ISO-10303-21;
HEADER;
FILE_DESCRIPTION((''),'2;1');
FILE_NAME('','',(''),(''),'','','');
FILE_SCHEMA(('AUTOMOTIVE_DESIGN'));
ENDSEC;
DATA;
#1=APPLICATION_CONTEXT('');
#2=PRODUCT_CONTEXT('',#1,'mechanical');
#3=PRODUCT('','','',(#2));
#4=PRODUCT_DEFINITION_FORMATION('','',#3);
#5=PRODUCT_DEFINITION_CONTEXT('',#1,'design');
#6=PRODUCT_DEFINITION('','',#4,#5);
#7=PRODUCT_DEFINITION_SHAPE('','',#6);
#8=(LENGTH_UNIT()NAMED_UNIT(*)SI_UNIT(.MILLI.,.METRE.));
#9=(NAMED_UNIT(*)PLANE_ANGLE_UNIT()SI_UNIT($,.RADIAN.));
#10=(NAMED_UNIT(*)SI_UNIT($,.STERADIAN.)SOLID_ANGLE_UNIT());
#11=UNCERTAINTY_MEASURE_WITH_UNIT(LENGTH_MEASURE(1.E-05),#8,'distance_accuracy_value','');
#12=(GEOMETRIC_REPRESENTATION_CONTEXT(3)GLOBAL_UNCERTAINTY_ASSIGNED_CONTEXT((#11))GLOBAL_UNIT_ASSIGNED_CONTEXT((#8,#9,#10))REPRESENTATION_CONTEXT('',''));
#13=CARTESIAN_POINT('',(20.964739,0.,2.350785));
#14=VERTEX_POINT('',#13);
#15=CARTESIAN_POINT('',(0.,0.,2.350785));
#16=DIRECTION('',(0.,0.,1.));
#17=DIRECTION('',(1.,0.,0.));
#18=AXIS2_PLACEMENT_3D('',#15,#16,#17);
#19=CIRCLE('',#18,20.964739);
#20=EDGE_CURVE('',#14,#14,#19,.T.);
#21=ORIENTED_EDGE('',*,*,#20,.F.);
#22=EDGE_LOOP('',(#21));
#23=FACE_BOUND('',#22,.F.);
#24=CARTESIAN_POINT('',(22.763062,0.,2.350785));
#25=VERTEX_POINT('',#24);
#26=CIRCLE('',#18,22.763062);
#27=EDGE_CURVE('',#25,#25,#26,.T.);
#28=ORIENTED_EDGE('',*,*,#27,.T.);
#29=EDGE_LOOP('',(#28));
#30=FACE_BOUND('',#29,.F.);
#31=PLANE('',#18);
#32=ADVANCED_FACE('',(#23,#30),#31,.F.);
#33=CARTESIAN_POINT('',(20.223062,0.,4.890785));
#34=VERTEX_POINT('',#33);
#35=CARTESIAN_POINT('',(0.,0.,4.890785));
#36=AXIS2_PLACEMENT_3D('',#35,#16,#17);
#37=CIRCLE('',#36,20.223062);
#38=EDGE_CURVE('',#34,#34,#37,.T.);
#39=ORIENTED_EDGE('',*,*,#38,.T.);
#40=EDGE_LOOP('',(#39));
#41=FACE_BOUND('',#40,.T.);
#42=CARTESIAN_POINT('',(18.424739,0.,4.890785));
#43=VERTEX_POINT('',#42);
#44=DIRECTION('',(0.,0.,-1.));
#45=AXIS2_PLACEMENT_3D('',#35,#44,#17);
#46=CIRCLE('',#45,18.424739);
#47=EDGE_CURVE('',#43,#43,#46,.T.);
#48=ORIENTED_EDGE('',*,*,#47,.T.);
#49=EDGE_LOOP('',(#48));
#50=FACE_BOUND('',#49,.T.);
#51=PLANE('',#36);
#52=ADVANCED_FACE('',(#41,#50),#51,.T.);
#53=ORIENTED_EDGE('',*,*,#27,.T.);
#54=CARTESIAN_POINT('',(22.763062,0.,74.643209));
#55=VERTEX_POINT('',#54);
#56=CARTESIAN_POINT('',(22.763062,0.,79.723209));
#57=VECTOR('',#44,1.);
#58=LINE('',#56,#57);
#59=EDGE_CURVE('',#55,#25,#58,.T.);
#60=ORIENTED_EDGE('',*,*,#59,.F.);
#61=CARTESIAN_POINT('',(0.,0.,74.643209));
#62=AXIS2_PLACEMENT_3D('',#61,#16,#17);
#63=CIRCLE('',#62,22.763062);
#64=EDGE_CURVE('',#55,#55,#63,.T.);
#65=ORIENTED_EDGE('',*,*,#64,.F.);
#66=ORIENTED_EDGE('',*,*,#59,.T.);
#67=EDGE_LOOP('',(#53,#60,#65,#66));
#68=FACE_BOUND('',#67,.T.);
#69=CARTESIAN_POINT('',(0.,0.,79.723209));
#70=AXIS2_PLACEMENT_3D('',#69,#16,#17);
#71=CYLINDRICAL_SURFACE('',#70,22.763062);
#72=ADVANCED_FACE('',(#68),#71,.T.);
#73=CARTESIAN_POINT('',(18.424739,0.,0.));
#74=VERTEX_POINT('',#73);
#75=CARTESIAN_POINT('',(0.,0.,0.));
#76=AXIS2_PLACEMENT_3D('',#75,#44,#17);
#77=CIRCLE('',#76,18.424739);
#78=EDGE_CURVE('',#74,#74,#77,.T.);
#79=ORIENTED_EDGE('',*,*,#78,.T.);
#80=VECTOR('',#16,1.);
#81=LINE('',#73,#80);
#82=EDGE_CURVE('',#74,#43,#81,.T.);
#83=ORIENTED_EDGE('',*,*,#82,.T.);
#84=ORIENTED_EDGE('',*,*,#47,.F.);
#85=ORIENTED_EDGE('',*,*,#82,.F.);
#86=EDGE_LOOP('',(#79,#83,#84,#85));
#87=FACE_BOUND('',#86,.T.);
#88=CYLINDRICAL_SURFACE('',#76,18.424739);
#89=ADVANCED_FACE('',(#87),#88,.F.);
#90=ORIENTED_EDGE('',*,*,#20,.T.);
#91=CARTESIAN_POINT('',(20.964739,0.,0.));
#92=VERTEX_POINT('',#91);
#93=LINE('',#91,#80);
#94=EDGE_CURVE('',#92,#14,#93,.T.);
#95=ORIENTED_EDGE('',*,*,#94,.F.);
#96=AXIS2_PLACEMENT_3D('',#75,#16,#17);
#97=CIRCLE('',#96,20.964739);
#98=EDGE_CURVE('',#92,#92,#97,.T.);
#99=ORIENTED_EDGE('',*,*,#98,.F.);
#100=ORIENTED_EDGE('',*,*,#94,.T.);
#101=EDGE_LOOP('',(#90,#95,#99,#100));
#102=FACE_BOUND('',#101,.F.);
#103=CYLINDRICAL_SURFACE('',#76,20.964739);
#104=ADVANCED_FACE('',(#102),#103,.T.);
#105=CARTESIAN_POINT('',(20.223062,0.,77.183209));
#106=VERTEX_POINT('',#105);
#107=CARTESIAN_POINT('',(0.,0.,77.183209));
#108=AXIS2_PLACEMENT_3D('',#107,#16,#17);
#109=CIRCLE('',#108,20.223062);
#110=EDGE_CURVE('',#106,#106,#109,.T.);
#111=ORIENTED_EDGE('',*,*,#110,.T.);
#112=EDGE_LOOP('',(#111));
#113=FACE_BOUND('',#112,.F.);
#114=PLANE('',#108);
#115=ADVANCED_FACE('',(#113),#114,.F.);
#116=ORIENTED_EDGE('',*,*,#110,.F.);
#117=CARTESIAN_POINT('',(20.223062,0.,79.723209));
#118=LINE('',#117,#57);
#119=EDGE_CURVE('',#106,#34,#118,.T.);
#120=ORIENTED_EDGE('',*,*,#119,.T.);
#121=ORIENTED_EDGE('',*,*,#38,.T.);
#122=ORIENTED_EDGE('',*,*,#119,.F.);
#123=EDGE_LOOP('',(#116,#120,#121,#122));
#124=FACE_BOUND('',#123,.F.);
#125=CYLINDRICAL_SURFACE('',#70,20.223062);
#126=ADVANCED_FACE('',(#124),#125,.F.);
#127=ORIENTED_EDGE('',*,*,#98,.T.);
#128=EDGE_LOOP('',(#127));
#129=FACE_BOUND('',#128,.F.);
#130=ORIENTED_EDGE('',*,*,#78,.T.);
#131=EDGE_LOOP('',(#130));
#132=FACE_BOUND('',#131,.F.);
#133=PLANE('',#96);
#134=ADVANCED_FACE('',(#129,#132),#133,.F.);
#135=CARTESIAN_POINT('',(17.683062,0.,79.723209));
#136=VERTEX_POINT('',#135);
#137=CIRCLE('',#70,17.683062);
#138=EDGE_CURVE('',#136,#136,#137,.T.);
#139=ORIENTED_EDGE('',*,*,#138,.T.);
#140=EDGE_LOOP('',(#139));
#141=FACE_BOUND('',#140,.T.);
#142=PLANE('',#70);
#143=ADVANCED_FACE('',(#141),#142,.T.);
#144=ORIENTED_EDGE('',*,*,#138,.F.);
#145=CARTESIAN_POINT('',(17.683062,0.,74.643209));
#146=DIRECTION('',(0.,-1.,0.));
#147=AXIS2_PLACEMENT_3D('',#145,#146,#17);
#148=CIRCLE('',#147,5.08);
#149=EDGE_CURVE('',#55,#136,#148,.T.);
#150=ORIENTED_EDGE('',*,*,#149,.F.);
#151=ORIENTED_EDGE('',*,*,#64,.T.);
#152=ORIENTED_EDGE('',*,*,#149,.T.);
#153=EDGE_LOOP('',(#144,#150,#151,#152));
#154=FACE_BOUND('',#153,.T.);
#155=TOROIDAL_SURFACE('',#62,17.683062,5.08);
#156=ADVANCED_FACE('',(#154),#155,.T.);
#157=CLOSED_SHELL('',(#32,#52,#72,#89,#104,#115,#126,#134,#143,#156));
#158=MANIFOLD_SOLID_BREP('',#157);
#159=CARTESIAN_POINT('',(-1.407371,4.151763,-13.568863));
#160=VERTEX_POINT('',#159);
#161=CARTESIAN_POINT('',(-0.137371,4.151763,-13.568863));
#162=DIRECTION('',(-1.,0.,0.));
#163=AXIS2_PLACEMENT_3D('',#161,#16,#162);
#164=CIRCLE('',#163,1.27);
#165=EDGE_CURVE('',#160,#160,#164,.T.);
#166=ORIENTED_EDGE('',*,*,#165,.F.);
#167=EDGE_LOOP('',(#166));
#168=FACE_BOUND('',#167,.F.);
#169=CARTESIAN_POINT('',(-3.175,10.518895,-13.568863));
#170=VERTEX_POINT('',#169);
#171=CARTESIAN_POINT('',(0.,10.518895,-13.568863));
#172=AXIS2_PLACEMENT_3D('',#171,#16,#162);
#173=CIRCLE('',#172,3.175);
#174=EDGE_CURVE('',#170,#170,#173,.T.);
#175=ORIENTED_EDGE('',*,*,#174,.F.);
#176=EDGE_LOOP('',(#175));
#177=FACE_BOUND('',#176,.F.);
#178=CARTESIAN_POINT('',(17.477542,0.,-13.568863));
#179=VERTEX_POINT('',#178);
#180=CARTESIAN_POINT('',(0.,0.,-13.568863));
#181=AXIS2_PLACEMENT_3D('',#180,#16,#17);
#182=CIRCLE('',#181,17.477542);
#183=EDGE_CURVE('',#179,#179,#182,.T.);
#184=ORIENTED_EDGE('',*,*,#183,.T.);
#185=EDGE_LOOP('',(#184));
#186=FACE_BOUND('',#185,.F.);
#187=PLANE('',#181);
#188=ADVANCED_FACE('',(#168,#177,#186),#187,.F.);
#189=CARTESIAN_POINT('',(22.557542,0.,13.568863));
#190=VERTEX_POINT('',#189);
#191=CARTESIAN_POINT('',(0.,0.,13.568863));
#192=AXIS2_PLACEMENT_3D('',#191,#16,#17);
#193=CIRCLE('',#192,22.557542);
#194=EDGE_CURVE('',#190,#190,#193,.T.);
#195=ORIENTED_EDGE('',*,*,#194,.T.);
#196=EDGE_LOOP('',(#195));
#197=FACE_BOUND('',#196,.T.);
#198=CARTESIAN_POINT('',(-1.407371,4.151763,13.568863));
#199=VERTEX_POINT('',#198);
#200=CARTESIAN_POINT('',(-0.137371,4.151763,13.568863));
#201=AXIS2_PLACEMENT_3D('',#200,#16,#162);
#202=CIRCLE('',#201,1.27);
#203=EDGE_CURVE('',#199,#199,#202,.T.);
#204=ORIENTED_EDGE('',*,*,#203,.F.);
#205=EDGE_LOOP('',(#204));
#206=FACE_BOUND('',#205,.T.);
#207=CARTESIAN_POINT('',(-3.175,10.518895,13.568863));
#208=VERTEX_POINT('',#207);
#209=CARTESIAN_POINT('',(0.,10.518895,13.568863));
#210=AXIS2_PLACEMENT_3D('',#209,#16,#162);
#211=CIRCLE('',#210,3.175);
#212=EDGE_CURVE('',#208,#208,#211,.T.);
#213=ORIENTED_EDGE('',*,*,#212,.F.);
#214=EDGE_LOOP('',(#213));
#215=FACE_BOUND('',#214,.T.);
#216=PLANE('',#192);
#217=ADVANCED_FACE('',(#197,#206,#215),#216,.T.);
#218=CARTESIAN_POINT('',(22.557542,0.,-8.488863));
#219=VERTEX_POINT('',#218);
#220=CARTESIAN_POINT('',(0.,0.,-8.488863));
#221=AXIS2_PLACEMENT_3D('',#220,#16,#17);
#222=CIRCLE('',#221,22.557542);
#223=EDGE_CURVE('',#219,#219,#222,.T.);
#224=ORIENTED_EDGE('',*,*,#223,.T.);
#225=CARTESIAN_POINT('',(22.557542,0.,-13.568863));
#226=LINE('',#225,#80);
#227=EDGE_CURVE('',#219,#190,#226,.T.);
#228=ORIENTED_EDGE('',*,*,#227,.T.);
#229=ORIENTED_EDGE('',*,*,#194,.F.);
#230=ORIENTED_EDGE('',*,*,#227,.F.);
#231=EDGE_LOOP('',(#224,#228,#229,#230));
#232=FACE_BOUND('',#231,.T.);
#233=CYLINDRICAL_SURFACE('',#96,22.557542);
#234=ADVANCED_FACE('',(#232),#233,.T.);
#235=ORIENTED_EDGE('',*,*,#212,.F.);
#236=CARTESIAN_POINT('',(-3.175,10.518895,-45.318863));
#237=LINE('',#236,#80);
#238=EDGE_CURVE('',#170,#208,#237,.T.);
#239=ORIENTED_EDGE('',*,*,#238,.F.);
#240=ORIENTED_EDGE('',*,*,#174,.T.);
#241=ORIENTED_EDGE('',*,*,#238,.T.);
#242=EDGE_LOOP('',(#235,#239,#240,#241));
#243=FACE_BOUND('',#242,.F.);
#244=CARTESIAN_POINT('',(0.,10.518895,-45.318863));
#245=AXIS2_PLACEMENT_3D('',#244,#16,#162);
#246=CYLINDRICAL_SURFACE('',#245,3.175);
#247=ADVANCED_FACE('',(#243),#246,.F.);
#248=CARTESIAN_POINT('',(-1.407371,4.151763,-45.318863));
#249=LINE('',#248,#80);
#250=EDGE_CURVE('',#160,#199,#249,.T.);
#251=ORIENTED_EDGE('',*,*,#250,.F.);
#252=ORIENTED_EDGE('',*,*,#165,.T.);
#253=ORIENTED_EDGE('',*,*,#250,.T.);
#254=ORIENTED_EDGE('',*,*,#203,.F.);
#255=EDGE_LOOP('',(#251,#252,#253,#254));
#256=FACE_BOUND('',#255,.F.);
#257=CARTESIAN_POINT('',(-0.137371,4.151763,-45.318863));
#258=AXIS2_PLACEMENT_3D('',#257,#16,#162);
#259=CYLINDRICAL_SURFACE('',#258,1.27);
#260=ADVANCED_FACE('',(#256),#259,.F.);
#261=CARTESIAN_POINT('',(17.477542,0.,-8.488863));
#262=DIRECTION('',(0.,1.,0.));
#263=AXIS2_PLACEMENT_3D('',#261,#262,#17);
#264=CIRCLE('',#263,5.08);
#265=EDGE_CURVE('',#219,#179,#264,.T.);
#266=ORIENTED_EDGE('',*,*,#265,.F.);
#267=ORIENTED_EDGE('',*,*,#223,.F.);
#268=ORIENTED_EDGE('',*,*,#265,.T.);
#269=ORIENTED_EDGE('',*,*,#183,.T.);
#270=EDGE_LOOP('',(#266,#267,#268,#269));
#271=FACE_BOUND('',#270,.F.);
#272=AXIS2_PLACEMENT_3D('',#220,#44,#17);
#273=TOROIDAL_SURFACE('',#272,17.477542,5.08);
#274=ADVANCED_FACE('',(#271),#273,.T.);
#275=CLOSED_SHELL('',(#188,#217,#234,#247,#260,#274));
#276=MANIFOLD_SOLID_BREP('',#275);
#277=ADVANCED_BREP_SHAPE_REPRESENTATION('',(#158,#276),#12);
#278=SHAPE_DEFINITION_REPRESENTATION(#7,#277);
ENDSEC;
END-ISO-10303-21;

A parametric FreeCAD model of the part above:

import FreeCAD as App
import Part
import Sketcher
Q = App.Units.Quantity


def edges_at(feature, points):
    """Names of the edges that pass closest to the given points."""
    edges = feature.Shape.Edges
    near = lambda p: min(range(len(edges)), key=lambda i: edges[i].distToShape(Part.Vertex(*p))[0])
    return sorted({f"Edge{near(p) + 1}" for p in points})


def faces_at(feature, points):
    """Names of the faces that lie closest to the given points."""
    faces = feature.Shape.Faces
    near = lambda p: min(range(len(faces)), key=lambda i: faces[i].distToShape(Part.Vertex(*p))[0])
    return sorted({f"Face{near(p) + 1}" for p in points})

doc = App.newDocument("Part")
body = doc.addObject("PartDesign::Body", "Body")

# Sketch on XY plane
sketch1 = doc.addObject("Sketcher::SketchObject", "Sketch")
body.addObject(sketch1)
sketch1.AttachmentSupport = (doc.XY_Plane, [""])
sketch1.MapMode = "FlatFace"
sketch1.addGeometry(Part.Circle(App.Vector(0, 0, 0), App.Vector(0, 0, 1), 21), False)
sketch1.addConstraint(Sketcher.Constraint("Coincident", 0, 3, -1, 1))
sketch1.addConstraint(Sketcher.Constraint("Diameter", 0, 41.929478))
pad1 = doc.addObject("PartDesign::Pad", "Pad")
body.addObject(pad1)
pad1.Profile = sketch1
pad1.Length = 79.723209

# Sketch on XY plane
sketch2 = doc.addObject("Sketcher::SketchObject", "Sketch001")
body.addObject(sketch2)
sketch2.AttachmentSupport = (doc.XY_Plane, [""])
sketch2.MapMode = "FlatFace"
sketch2.AttachmentOffset = App.Placement(App.Vector(0, 0, 79.723209), App.Rotation())
sketch2.addGeometry(Part.Circle(App.Vector(0, 0, 0), App.Vector(0, 0, 1), 23), False)
sketch2.addGeometry(Part.Circle(App.Vector(0, 0, 0), App.Vector(0, 0, 1), 21), False)
sketch2.addConstraint(Sketcher.Constraint("Coincident", 0, 3, -1, 1))
sketch2.addConstraint(Sketcher.Constraint("Coincident", 1, 3, -1, 1))
sketch2.addConstraint(Sketcher.Constraint("Diameter", 1, 41.929478))
sketch2.addConstraint(Sketcher.Constraint("Diameter", 0, 45.526123))
pad2 = doc.addObject("PartDesign::Pad", "Pad001")
body.addObject(pad2)
pad2.Profile = sketch2
pad2.Length = 77.372424
pad2.Reversed = True
doc.recompute()

thickness = doc.addObject("PartDesign::Thickness", "Thickness")
body.addObject(thickness)
thickness.Base = (pad2, faces_at(pad2, [(0, 0, 0)]))
thickness.Value = Q("0.1 in")
thickness.Reversed = True
thickness.Join = "Intersection"
doc.recompute()

fillet = doc.addObject("PartDesign::Fillet", "Fillet")
body.addObject(fillet)
fillet.Base = (thickness, edges_at(thickness, [(-22.763, 0, 79.723)]))
fillet.Radius = Q("0.2 in")
body2 = doc.addObject("PartDesign::Body", "Body001")

# Sketch on XY plane
sketch3 = doc.addObject("Sketcher::SketchObject", "Sketch002")
body2.addObject(sketch3)
sketch3.AttachmentSupport = (doc.getObject("XY_Plane001"), [""])
sketch3.MapMode = "FlatFace"
sketch3.addGeometry(Part.Circle(App.Vector(0, 0, 0), App.Vector(0, 0, 1), 23), False)
sketch3.addConstraint(Sketcher.Constraint("Coincident", 0, 3, -1, 1))
sketch3.addConstraint(Sketcher.Constraint("Diameter", 0, 45.115083))
pad3 = doc.addObject("PartDesign::Pad", "Pad002")
body2.addObject(pad3)
pad3.Profile = sketch3
pad3.Length = 27.137727
pad3.Midplane = True

# Sketch on XY plane
sketch4 = doc.addObject("Sketcher::SketchObject", "Sketch003")
body2.addObject(sketch4)
sketch4.AttachmentSupport = (doc.getObject("XY_Plane001"), [""])
sketch4.MapMode = "FlatFace"
sketch4.AttachmentOffset = App.Placement(App.Vector(0, 0, -13.568863), App.Rotation())
sketch4.addGeometry(Part.Circle(App.Vector(0, 10.5, 0), App.Vector(0, 0, 1), 3.2), False)
sketch4.addConstraint(Sketcher.Constraint("PointOnObject", 0, 3, -2))
sketch4.addConstraint(Sketcher.Constraint("Diameter", 0, Q("0.25 in")))
sketch4.addConstraint(Sketcher.Constraint("DistanceY", -1, 1, 0, 3, 10.518895))
doc.recompute()
hole = doc.addObject("PartDesign::Hole", "Hole")
body2.addObject(hole)
hole.Profile = sketch4
hole.ThreadType = "None"
hole.Diameter = Q("0.25 in")
hole.DepthType = "Dimension"
hole.Depth = Q("1.25 in")
hole.DrillPoint = "Angled"
hole.DrillPointAngle = 118
hole.Reversed = True
doc.recompute()

fillet2 = doc.addObject("PartDesign::Fillet", "Fillet001")
body2.addObject(fillet2)
fillet2.Base = (hole, edges_at(hole, [(-22.558, 0, -13.569)]))
fillet2.Radius = Q("0.2 in")

# Sketch on XY plane
sketch5 = doc.addObject("Sketcher::SketchObject", "Sketch004")
body2.addObject(sketch5)
sketch5.AttachmentSupport = (doc.getObject("XY_Plane001"), [""])
sketch5.MapMode = "FlatFace"
sketch5.AttachmentOffset = App.Placement(App.Vector(0, 0, -13.568863), App.Rotation())
sketch5.addGeometry(Part.Circle(App.Vector(-0.1, 4.2, 0), App.Vector(0, 0, 1), 1.3), False)
sketch5.addConstraint(Sketcher.Constraint("Diameter", 0, Q("0.1 in")))
sketch5.addConstraint(Sketcher.Constraint("DistanceX", 0, 3, -1, 1, 0.137371))
sketch5.addConstraint(Sketcher.Constraint("DistanceY", -1, 1, 0, 3, 4.151763))
doc.recompute()
hole2 = doc.addObject("PartDesign::Hole", "Hole001")
body2.addObject(hole2)
hole2.Profile = sketch5
hole2.ThreadType = "None"
hole2.Diameter = Q("0.1 in")
hole2.DepthType = "Dimension"
hole2.Depth = Q("1.25 in")
hole2.DrillPoint = "Angled"
hole2.DrillPointAngle = 118
hole2.Reversed = True

doc.recompute()
